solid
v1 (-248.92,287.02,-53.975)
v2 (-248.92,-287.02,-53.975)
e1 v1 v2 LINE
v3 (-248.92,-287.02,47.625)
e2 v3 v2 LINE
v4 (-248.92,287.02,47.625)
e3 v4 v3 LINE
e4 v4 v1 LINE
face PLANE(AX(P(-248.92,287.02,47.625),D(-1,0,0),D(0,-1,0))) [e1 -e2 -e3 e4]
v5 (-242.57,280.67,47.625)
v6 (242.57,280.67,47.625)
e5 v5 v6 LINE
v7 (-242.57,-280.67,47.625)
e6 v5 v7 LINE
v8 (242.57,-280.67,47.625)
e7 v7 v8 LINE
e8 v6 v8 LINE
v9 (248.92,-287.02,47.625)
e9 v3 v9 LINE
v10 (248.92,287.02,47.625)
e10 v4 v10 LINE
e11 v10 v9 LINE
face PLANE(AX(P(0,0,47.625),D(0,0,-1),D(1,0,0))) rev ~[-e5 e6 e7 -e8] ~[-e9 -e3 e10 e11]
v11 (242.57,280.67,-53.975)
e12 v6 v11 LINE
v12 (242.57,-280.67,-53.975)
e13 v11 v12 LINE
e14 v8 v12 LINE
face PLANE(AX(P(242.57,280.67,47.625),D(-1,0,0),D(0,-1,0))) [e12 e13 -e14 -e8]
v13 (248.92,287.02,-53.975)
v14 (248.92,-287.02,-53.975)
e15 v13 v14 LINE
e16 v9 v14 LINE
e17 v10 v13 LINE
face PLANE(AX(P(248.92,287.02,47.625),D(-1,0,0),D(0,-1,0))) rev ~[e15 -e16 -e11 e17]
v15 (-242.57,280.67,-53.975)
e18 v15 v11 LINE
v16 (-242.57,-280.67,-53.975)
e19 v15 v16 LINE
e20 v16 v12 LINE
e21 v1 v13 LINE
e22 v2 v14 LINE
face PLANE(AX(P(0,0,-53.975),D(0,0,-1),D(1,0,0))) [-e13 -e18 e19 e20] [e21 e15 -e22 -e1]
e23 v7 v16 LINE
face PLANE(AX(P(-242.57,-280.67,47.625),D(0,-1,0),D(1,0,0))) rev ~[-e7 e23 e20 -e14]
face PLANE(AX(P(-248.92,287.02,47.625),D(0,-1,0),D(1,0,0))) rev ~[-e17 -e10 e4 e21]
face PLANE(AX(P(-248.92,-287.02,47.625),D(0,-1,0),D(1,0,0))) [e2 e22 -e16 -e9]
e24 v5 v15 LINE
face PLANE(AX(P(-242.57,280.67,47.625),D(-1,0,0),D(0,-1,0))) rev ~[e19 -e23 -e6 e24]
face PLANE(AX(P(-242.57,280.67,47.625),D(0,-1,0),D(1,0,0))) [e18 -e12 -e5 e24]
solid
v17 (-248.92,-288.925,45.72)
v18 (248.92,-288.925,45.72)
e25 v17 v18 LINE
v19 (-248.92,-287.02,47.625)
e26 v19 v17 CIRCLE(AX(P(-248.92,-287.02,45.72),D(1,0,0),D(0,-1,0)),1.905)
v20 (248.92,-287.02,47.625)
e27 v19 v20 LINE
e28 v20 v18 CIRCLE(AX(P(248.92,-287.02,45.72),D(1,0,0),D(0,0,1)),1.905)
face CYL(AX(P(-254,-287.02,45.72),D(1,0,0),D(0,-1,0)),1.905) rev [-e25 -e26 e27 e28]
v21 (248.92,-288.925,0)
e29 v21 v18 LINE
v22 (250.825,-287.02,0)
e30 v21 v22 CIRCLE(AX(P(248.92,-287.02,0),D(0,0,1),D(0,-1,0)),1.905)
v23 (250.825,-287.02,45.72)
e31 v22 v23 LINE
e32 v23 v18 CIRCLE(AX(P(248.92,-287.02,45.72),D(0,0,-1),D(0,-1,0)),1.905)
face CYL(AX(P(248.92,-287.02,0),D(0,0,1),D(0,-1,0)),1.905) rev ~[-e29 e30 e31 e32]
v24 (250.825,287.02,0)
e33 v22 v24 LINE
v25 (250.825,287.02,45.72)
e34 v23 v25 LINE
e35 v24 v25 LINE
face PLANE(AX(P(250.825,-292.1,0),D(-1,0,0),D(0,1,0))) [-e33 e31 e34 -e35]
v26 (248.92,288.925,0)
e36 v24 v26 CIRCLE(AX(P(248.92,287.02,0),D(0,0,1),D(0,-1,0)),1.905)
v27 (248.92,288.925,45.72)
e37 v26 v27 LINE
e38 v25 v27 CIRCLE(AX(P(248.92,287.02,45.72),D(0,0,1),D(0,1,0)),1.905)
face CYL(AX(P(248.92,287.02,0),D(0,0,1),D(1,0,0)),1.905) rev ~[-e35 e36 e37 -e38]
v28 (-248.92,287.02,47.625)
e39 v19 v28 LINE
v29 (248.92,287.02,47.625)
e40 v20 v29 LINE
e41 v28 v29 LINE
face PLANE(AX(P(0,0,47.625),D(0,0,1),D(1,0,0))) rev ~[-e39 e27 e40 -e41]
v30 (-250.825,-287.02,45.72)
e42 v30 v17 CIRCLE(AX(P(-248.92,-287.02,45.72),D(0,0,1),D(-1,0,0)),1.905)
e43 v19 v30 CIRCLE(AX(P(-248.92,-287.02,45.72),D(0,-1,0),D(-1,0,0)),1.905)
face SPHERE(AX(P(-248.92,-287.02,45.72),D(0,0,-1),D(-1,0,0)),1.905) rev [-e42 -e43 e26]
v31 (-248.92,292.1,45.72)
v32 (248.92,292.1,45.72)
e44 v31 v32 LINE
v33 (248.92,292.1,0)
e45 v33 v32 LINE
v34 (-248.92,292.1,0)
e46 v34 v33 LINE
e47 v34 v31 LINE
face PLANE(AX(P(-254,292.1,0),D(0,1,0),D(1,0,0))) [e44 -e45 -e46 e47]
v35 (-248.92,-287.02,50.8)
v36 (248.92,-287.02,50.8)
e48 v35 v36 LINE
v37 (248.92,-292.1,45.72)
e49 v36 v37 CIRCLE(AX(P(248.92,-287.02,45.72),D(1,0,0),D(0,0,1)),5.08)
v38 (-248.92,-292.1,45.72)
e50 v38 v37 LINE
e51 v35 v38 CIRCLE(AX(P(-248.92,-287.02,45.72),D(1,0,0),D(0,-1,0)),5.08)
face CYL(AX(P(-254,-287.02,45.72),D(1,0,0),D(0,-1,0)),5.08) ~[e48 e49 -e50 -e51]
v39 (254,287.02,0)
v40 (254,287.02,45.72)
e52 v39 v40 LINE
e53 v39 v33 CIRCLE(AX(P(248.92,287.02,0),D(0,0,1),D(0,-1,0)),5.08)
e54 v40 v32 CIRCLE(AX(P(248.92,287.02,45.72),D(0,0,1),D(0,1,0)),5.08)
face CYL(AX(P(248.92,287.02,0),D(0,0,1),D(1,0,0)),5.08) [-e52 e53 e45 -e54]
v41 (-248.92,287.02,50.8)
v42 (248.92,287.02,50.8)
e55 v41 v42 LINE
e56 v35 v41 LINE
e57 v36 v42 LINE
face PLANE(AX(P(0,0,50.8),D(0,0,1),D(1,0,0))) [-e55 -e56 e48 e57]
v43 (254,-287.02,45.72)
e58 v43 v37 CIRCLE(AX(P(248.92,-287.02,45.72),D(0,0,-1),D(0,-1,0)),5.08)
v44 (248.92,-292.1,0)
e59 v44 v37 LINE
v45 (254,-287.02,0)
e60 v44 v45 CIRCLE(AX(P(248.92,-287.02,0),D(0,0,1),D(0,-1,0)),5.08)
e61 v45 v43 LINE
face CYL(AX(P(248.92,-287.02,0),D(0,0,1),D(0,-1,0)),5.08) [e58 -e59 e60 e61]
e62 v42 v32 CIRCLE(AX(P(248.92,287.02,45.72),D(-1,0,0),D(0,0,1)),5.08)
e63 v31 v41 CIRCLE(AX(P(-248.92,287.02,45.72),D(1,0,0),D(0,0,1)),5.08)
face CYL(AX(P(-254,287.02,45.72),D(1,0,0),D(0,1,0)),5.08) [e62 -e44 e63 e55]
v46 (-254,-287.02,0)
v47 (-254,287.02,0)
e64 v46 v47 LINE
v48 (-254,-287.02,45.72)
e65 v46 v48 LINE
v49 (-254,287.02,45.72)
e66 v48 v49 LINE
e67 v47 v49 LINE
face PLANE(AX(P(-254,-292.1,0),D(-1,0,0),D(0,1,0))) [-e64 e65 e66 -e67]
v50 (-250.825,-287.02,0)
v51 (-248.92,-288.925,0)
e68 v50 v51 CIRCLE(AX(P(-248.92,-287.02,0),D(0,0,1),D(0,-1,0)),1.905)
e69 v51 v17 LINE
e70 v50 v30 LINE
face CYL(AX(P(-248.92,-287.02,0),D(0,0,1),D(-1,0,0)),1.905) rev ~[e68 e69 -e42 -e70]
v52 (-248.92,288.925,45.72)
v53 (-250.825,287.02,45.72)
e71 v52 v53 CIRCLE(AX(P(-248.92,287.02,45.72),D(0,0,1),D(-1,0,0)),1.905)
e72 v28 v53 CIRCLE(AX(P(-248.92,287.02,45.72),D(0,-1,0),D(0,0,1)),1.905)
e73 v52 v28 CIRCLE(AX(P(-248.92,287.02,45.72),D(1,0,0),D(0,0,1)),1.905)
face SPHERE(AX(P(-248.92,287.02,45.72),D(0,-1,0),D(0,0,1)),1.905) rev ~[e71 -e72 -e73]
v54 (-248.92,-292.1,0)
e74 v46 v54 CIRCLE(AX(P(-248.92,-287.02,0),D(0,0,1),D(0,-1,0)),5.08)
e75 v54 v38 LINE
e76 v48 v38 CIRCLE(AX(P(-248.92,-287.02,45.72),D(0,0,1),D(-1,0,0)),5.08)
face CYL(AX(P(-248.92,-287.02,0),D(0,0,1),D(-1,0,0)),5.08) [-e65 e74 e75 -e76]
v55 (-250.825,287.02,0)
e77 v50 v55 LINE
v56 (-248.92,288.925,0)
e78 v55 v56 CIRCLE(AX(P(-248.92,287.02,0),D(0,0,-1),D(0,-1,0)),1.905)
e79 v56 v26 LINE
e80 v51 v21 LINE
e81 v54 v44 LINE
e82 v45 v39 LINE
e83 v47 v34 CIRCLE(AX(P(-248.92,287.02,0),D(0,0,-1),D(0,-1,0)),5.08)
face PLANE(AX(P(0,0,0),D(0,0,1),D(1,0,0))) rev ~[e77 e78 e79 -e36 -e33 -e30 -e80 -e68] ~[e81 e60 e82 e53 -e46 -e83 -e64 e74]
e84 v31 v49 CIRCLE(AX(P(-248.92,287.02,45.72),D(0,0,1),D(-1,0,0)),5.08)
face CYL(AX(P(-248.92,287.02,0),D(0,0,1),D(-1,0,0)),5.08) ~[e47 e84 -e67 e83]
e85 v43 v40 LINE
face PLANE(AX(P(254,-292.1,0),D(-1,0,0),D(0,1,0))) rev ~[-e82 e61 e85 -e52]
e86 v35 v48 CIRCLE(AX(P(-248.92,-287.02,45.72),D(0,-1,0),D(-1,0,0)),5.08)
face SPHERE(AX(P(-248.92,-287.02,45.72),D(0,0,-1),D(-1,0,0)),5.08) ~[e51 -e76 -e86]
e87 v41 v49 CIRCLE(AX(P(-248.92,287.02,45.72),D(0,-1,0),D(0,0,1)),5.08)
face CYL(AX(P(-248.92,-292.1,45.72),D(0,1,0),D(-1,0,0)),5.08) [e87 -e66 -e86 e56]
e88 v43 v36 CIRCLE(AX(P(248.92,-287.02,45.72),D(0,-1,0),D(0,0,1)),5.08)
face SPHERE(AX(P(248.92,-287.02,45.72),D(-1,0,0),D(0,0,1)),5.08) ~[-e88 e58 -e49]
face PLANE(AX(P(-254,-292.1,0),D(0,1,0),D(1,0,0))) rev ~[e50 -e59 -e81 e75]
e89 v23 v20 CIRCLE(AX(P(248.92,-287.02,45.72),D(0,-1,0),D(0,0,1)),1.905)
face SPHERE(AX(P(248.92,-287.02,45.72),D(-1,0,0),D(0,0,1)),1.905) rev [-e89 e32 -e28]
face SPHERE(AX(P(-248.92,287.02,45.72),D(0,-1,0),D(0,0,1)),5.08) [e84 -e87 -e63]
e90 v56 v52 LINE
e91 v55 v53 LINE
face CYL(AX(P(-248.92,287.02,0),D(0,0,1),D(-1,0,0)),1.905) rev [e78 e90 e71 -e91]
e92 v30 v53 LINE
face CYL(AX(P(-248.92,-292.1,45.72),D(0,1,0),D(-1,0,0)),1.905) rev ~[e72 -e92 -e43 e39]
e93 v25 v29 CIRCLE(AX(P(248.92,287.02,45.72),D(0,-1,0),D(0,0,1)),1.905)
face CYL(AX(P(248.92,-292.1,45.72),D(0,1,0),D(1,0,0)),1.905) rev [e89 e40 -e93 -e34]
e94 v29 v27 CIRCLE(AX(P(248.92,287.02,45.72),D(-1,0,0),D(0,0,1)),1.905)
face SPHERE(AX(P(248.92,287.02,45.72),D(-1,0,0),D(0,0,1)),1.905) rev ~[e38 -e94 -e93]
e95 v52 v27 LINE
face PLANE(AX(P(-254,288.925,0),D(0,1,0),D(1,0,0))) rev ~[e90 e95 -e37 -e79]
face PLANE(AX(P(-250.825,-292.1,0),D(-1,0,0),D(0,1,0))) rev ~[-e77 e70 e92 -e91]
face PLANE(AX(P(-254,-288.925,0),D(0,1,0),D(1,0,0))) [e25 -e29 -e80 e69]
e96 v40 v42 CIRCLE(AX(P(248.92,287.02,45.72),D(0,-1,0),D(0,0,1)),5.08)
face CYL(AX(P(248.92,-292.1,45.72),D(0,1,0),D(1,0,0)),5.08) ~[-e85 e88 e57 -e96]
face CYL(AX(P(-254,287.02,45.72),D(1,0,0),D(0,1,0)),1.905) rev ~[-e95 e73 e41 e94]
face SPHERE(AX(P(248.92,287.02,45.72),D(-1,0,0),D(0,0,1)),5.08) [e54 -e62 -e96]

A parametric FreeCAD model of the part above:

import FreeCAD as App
import Part
import Sketcher
Q = App.Units.Quantity


def edges_at(feature, points):
    """Names of the edges that pass closest to the given points."""
    edges = feature.Shape.Edges
    near = lambda p: min(range(len(edges)), key=lambda i: edges[i].distToShape(Part.Vertex(*p))[0])
    return sorted({f"Edge{near(p) + 1}" for p in points})


def faces_at(feature, points):
    """Names of the faces that lie closest to the given points."""
    faces = feature.Shape.Faces
    near = lambda p: min(range(len(faces)), key=lambda i: faces[i].distToShape(Part.Vertex(*p))[0])
    return sorted({f"Face{near(p) + 1}" for p in points})


def add_polygon(sketch, points):
    """Adds a closed chain of lines whose ends are joined by coincident constraints."""
    first, n = sketch.GeometryCount, len(points)
    for a, b in zip(points, points[1:] + points[:1]):
        sketch.addGeometry(Part.LineSegment(App.Vector(*a, 0), App.Vector(*b, 0)), False)
    for i in range(n):
        sketch.addConstraint(Sketcher.Constraint("Coincident", first + i, 2, first + (i + 1) % n, 1))

doc = App.newDocument("Part")
body = doc.addObject("PartDesign::Body", "Body")

sketch1 = body.newObject("Sketcher::SketchObject", "Sketch")
sketch1.AttachmentSupport = (doc.getObject("XY_Plane"), [""])
sketch1.MapMode = "FlatFace"
add_polygon(sketch1, [(-254, 292), (-254, -292), (254, -292), (254, 292)])
sketch1.addConstraint([
    Sketcher.Constraint("Vertical", 0),
    Sketcher.Constraint("Horizontal", 1),
    Sketcher.Constraint("Vertical", 2),
    Sketcher.Constraint("Horizontal", 3),
    Sketcher.Constraint("Symmetric", 0, 2, 2, 2, -1, 1),
    Sketcher.Constraint("DistanceX", 1, 1, 1, 2, Q("20 in")),
    Sketcher.Constraint("DistanceY", 0, 2, 0, 1, Q("23 in")),
])
pad1 = body.newObject("PartDesign::Pad", "Pad")
pad1.Profile = sketch1
pad1.Length = Q("2 in")
doc.recompute()

fillet = body.newObject("PartDesign::Fillet", "Fillet")
fillet.Base = (pad1, edges_at(pad1, [
    (-254, -292.1, 25.4),
    (-254, 0, 50.8),
    (0, 292.1, 50.8),
    (0, -292.1, 50.8),
    (254, 0, 50.8),
    (254, -292.1, 25.4),
    (254, 292.1, 25.4),
    (-254, 292.1, 25.4),
]))
fillet.Radius = Q("0.2 in")
doc.recompute()

thickness = body.newObject("PartDesign::Thickness", "Thickness")
thickness.Base = (fillet, faces_at(fillet, [(0, 0, 0)]))
thickness.Value = Q("0.125 in")
thickness.Reversed = True
thickness.Join = "Arc"
body2 = doc.addObject("PartDesign::Body", "Body001")

sketch2 = body2.newObject("Sketcher::SketchObject", "Sketch001")
sketch2.AttachmentSupport = (doc.getObject("XY_Plane001"), [""])
sketch2.MapMode = "FlatFace"
sketch2.AttachmentOffset = App.Placement(App.Vector(0, 0, 1.875 * 25.4), App.Rotation())
add_polygon(sketch2, [(-249, -287), (-249, 287), (249, 287), (249, -287)])
add_polygon(sketch2, [(243, 281), (-243, 281), (-243, -281), (243, -281)])
sketch2.addConstraint([
    Sketcher.Constraint("Vertical", 0),
    Sketcher.Constraint("Horizontal", 1),
    Sketcher.Constraint("Vertical", 2),
    Sketcher.Constraint("Horizontal", 3),
    Sketcher.Constraint("Horizontal", 4),
    Sketcher.Constraint("Vertical", 5),
    Sketcher.Constraint("Horizontal", 6),
    Sketcher.Constraint("Vertical", 7),
    Sketcher.Constraint("Symmetric", 0, 2, 2, 2, -1, 1),
    Sketcher.Constraint("Symmetric", 4, 2, 6, 2, -1, 1),
    Sketcher.Constraint("DistanceX", 1, 1, 1, 2, Q("19.6 in")),
    Sketcher.Constraint("DistanceX", 4, 2, 4, 1, Q("19.1 in")),
    Sketcher.Constraint("DistanceY", 0, 1, 0, 2, Q("22.6 in")),
    Sketcher.Constraint("DistanceY", 5, 2, 5, 1, Q("22.1 in")),
])
pad2 = body2.newObject("PartDesign::Pad", "Pad001")
pad2.Profile = sketch2
pad2.Length = Q("4 in")
pad2.Reversed = True

doc.recompute()
